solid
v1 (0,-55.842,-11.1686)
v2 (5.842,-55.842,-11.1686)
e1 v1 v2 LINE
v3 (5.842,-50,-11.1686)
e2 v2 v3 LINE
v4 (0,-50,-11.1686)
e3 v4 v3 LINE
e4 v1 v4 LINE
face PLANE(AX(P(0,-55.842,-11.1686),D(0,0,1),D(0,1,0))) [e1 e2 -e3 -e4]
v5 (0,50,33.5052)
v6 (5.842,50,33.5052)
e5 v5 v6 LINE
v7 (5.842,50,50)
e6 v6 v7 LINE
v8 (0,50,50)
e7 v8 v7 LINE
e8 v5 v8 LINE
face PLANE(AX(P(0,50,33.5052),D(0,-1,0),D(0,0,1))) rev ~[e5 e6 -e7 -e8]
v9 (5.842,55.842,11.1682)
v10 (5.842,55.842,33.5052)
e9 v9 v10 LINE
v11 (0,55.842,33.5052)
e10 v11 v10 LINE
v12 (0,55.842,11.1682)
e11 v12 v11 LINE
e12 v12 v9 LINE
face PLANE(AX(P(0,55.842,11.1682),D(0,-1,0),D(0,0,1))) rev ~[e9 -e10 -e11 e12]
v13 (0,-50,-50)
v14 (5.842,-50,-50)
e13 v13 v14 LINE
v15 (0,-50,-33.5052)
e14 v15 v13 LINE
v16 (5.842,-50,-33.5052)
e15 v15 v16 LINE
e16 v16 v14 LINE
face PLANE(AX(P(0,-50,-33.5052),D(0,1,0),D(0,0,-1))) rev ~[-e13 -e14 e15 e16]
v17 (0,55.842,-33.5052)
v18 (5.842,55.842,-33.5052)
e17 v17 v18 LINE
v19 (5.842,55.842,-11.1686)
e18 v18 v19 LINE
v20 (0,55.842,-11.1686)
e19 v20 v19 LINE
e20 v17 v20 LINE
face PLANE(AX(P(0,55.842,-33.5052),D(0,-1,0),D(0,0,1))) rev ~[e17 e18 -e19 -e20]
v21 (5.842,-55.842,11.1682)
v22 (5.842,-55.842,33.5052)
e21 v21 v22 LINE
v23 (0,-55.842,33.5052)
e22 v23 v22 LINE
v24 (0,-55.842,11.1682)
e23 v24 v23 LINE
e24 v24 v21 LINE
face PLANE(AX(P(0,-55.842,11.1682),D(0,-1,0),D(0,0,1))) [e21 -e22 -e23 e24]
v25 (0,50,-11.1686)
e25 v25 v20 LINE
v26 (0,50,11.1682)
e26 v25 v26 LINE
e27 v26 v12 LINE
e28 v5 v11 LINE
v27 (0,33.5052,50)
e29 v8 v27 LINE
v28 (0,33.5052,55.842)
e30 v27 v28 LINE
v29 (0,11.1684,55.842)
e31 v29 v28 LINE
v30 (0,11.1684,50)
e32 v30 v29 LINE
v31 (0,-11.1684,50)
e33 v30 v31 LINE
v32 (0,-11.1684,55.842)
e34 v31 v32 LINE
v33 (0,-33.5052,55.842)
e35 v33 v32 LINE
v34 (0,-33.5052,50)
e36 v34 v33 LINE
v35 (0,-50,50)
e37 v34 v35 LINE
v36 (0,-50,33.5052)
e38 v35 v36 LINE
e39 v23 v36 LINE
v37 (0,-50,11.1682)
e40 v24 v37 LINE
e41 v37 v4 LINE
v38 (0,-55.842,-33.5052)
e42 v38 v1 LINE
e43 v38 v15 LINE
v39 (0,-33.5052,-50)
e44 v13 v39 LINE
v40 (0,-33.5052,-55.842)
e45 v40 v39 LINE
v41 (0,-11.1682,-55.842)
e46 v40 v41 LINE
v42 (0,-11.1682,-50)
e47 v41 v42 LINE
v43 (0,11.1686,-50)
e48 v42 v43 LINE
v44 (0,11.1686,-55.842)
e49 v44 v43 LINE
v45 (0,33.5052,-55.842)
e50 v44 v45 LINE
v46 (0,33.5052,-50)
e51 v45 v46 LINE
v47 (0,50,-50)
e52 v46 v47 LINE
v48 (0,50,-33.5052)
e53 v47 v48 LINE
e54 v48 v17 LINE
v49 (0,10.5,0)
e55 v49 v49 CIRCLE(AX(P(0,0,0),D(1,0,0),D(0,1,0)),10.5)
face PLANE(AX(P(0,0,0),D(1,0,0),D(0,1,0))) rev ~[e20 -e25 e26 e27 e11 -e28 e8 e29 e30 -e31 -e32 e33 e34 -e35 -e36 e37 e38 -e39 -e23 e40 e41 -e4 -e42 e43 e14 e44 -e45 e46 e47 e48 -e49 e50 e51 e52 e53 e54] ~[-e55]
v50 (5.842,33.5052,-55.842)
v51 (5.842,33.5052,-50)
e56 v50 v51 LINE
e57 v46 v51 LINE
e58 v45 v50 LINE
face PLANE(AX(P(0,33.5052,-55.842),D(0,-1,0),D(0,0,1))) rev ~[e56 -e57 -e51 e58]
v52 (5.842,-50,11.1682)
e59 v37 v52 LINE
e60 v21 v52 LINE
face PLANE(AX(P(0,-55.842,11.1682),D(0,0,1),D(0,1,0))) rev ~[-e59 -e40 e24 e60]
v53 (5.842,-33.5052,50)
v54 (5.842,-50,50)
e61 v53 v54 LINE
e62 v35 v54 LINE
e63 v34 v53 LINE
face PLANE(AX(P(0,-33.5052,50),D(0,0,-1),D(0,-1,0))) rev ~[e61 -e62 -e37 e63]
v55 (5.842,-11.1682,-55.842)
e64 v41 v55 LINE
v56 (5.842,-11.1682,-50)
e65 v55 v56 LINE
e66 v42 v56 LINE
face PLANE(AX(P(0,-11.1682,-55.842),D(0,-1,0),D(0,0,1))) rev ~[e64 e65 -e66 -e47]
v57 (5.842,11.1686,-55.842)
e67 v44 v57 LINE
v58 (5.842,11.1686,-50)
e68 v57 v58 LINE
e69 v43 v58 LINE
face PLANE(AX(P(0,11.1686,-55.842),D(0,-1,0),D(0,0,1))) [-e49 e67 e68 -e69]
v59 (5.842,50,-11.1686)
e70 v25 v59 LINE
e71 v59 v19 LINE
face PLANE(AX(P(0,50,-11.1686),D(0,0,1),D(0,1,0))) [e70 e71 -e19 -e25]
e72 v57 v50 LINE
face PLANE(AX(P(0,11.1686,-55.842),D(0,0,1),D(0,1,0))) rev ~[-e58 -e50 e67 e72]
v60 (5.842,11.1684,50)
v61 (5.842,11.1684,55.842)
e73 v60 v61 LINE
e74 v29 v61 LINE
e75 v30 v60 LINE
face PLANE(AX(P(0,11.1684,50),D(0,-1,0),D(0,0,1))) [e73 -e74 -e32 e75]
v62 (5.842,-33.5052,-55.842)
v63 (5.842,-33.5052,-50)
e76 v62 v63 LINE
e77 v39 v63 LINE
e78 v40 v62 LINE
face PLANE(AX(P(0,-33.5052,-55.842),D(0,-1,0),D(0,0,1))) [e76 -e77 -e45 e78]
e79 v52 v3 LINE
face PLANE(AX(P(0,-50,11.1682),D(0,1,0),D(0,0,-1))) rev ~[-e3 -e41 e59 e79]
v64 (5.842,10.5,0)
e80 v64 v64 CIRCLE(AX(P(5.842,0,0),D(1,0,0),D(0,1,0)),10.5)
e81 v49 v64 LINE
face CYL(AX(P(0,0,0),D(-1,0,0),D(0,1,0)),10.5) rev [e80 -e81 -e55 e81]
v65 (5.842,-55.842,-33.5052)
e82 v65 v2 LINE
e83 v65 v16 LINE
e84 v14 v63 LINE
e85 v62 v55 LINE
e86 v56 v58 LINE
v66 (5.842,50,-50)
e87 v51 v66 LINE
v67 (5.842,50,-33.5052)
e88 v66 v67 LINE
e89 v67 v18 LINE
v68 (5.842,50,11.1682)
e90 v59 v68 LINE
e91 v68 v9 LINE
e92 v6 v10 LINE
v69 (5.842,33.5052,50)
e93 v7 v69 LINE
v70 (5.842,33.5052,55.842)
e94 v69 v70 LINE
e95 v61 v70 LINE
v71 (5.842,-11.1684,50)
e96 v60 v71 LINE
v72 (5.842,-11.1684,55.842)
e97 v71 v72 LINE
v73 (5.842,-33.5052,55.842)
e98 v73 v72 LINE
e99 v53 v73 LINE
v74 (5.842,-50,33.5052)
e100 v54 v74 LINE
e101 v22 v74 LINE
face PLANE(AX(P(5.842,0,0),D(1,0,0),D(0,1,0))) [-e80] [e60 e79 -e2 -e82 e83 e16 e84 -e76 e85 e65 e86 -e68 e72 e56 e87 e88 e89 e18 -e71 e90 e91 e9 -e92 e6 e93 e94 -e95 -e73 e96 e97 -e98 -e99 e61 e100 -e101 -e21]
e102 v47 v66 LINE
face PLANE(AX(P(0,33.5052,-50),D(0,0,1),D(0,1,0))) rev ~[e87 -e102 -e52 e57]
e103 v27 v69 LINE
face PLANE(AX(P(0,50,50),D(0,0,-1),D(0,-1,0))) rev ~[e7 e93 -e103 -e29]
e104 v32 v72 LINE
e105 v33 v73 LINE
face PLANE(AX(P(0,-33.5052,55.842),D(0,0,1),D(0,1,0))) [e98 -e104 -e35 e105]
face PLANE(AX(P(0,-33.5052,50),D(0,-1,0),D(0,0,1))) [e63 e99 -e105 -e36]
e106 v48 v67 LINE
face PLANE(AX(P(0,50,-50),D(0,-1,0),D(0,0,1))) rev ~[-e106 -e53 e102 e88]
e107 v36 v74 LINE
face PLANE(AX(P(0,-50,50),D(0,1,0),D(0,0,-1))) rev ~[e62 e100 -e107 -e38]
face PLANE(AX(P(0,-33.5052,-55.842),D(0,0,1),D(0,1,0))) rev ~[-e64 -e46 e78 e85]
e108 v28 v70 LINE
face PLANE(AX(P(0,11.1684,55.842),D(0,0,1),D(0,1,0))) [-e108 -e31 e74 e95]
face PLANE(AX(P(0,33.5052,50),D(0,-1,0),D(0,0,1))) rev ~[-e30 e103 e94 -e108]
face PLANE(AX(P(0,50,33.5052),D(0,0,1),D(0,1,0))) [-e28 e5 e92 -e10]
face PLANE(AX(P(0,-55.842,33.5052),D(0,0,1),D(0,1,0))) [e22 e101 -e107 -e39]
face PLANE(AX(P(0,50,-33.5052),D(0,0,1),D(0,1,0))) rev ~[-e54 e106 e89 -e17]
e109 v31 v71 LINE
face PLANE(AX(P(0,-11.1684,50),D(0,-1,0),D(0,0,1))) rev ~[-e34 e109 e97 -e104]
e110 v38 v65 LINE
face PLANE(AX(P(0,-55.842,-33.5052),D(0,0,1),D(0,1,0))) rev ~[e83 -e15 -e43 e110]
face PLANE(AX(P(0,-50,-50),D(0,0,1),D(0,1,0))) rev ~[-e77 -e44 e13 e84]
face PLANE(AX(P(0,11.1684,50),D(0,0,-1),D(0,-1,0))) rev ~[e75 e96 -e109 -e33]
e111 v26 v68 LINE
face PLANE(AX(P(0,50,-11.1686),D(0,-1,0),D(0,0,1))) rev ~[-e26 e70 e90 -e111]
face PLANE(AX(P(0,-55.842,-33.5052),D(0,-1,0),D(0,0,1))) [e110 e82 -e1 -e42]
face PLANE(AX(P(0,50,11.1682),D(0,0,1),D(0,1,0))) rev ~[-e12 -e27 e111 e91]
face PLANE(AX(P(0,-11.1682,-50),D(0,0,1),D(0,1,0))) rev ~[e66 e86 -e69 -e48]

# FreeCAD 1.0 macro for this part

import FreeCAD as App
import Part
import Sketcher
from FreeCAD import Vector
Q = App.Units.Quantity

doc = App.newDocument("Part")
params = doc.addObject("Spreadsheet::Sheet", "Params")
for row, (alias, value) in enumerate([
    ("sketch1_diameter", "21 mm"),
    ("pad1_length", "5.842 mm"),
], start=1):
    params.set(f"A{row}", alias)
    params.set(f"B{row}", "=" + value)
    params.setAlias(f"B{row}", alias)

body = doc.addObject("PartDesign::Body", "Body")

# Sketch on YZ plane
sketch1 = doc.addObject("Sketcher::SketchObject", "Sketch")
body.addObject(sketch1)
sketch1.AttachmentSupport = (doc.YZ_Plane, [""])
sketch1.MapMode = "FlatFace"
sketch1.addGeometry(Part.LineSegment(Vector(-50, 50, 0), Vector(-50, 34, 0)), False)
sketch1.addGeometry(Part.LineSegment(Vector(-50, 34, 0), Vector(-56, 34, 0)), False)
sketch1.addGeometry(Part.LineSegment(Vector(-56, 34, 0), Vector(-56, 11, 0)), False)
sketch1.addGeometry(Part.LineSegment(Vector(-56, 11, 0), Vector(-50, 11, 0)), False)
sketch1.addGeometry(Part.LineSegment(Vector(-50, 11, 0), Vector(-50, -11, 0)), False)
sketch1.addGeometry(Part.LineSegment(Vector(-50, -11, 0), Vector(-56, -11, 0)), False)
sketch1.addGeometry(Part.LineSegment(Vector(-56, -11, 0), Vector(-56, -34, 0)), False)
sketch1.addGeometry(Part.LineSegment(Vector(-56, -34, 0), Vector(-50, -34, 0)), False)
sketch1.addGeometry(Part.LineSegment(Vector(-50, -34, 0), Vector(-50, -50, 0)), False)
sketch1.addGeometry(Part.LineSegment(Vector(-50, -50, 0), Vector(-34, -50, 0)), False)
sketch1.addGeometry(Part.LineSegment(Vector(-34, -50, 0), Vector(-34, -56, 0)), False)
sketch1.addGeometry(Part.LineSegment(Vector(-34, -56, 0), Vector(-11, -56, 0)), False)
sketch1.addGeometry(Part.LineSegment(Vector(-11, -56, 0), Vector(-11, -50, 0)), False)
sketch1.addGeometry(Part.LineSegment(Vector(-11, -50, 0), Vector(11, -50, 0)), False)
sketch1.addGeometry(Part.LineSegment(Vector(11, -50, 0), Vector(11, -56, 0)), False)
sketch1.addGeometry(Part.LineSegment(Vector(11, -56, 0), Vector(34, -56, 0)), False)
sketch1.addGeometry(Part.LineSegment(Vector(34, -56, 0), Vector(34, -50, 0)), False)
sketch1.addGeometry(Part.LineSegment(Vector(34, -50, 0), Vector(50, -50, 0)), False)
sketch1.addGeometry(Part.LineSegment(Vector(50, -50, 0), Vector(50, -34, 0)), False)
sketch1.addGeometry(Part.LineSegment(Vector(50, -34, 0), Vector(56, -34, 0)), False)
sketch1.addGeometry(Part.LineSegment(Vector(56, -34, 0), Vector(56, -11, 0)), False)
sketch1.addGeometry(Part.LineSegment(Vector(56, -11, 0), Vector(50, -11, 0)), False)
sketch1.addGeometry(Part.LineSegment(Vector(50, -11, 0), Vector(50, 11, 0)), False)
sketch1.addGeometry(Part.LineSegment(Vector(50, 11, 0), Vector(56, 11, 0)), False)
sketch1.addGeometry(Part.LineSegment(Vector(56, 11, 0), Vector(56, 34, 0)), False)
sketch1.addGeometry(Part.LineSegment(Vector(56, 34, 0), Vector(50, 34, 0)), False)
sketch1.addGeometry(Part.LineSegment(Vector(50, 34, 0), Vector(50, 50, 0)), False)
sketch1.addGeometry(Part.LineSegment(Vector(50, 50, 0), Vector(34, 50, 0)), False)
sketch1.addGeometry(Part.LineSegment(Vector(34, 50, 0), Vector(34, 56, 0)), False)
sketch1.addGeometry(Part.LineSegment(Vector(34, 56, 0), Vector(11, 56, 0)), False)
sketch1.addGeometry(Part.LineSegment(Vector(11, 56, 0), Vector(11, 50, 0)), False)
sketch1.addGeometry(Part.LineSegment(Vector(11, 50, 0), Vector(-11, 50, 0)), False)
sketch1.addGeometry(Part.LineSegment(Vector(-11, 50, 0), Vector(-11, 56, 0)), False)
sketch1.addGeometry(Part.LineSegment(Vector(-11, 56, 0), Vector(-34, 56, 0)), False)
sketch1.addGeometry(Part.LineSegment(Vector(-34, 56, 0), Vector(-34, 50, 0)), False)
sketch1.addGeometry(Part.LineSegment(Vector(-34, 50, 0), Vector(-50, 50, 0)), False)
sketch1.addGeometry(Part.Circle(Vector(0, 0, 0), Vector(0, 0, 1), 10), False)
sketch1.addConstraint(Sketcher.Constraint("Coincident", 0, 2, 1, 1))
sketch1.addConstraint(Sketcher.Constraint("Coincident", 1, 2, 2, 1))
sketch1.addConstraint(Sketcher.Constraint("Coincident", 2, 2, 3, 1))
sketch1.addConstraint(Sketcher.Constraint("Coincident", 3, 2, 4, 1))
sketch1.addConstraint(Sketcher.Constraint("Coincident", 4, 2, 5, 1))
sketch1.addConstraint(Sketcher.Constraint("Coincident", 5, 2, 6, 1))
sketch1.addConstraint(Sketcher.Constraint("Coincident", 6, 2, 7, 1))
sketch1.addConstraint(Sketcher.Constraint("Coincident", 7, 2, 8, 1))
sketch1.addConstraint(Sketcher.Constraint("Coincident", 8, 2, 9, 1))
sketch1.addConstraint(Sketcher.Constraint("Coincident", 9, 2, 10, 1))
sketch1.addConstraint(Sketcher.Constraint("Coincident", 10, 2, 11, 1))
sketch1.addConstraint(Sketcher.Constraint("Coincident", 11, 2, 12, 1))
sketch1.addConstraint(Sketcher.Constraint("Coincident", 12, 2, 13, 1))
sketch1.addConstraint(Sketcher.Constraint("Coincident", 13, 2, 14, 1))
sketch1.addConstraint(Sketcher.Constraint("Coincident", 14, 2, 15, 1))
sketch1.addConstraint(Sketcher.Constraint("Coincident", 15, 2, 16, 1))
sketch1.addConstraint(Sketcher.Constraint("Coincident", 16, 2, 17, 1))
sketch1.addConstraint(Sketcher.Constraint("Coincident", 17, 2, 18, 1))
sketch1.addConstraint(Sketcher.Constraint("Coincident", 18, 2, 19, 1))
sketch1.addConstraint(Sketcher.Constraint("Coincident", 19, 2, 20, 1))
sketch1.addConstraint(Sketcher.Constraint("Coincident", 20, 2, 21, 1))
sketch1.addConstraint(Sketcher.Constraint("Coincident", 21, 2, 22, 1))
sketch1.addConstraint(Sketcher.Constraint("Coincident", 22, 2, 23, 1))
sketch1.addConstraint(Sketcher.Constraint("Coincident", 23, 2, 24, 1))
sketch1.addConstraint(Sketcher.Constraint("Coincident", 24, 2, 25, 1))
sketch1.addConstraint(Sketcher.Constraint("Coincident", 25, 2, 26, 1))
sketch1.addConstraint(Sketcher.Constraint("Coincident", 26, 2, 27, 1))
sketch1.addConstraint(Sketcher.Constraint("Coincident", 27, 2, 28, 1))
sketch1.addConstraint(Sketcher.Constraint("Coincident", 28, 2, 29, 1))
sketch1.addConstraint(Sketcher.Constraint("Coincident", 29, 2, 30, 1))
sketch1.addConstraint(Sketcher.Constraint("Coincident", 30, 2, 31, 1))
sketch1.addConstraint(Sketcher.Constraint("Coincident", 31, 2, 32, 1))
sketch1.addConstraint(Sketcher.Constraint("Coincident", 32, 2, 33, 1))
sketch1.addConstraint(Sketcher.Constraint("Coincident", 33, 2, 34, 1))
sketch1.addConstraint(Sketcher.Constraint("Coincident", 34, 2, 35, 1))
sketch1.addConstraint(Sketcher.Constraint("Coincident", 35, 2, 0, 1))
sketch1.addConstraint(Sketcher.Constraint("Vertical", 0))
sketch1.addConstraint(Sketcher.Constraint("Horizontal", 1))
sketch1.addConstraint(Sketcher.Constraint("Vertical", 2))
sketch1.addConstraint(Sketcher.Constraint("Horizontal", 3))
sketch1.addConstraint(Sketcher.Constraint("Vertical", 4))
sketch1.addConstraint(Sketcher.Constraint("Horizontal", 5))
sketch1.addConstraint(Sketcher.Constraint("Vertical", 6))
sketch1.addConstraint(Sketcher.Constraint("Horizontal", 7))
sketch1.addConstraint(Sketcher.Constraint("Vertical", 8))
sketch1.addConstraint(Sketcher.Constraint("Horizontal", 9))
sketch1.addConstraint(Sketcher.Constraint("Vertical", 10))
sketch1.addConstraint(Sketcher.Constraint("Horizontal", 11))
sketch1.addConstraint(Sketcher.Constraint("Vertical", 12))
sketch1.addConstraint(Sketcher.Constraint("Horizontal", 13))
sketch1.addConstraint(Sketcher.Constraint("Vertical", 14))
sketch1.addConstraint(Sketcher.Constraint("Horizontal", 15))
sketch1.addConstraint(Sketcher.Constraint("Vertical", 16))
sketch1.addConstraint(Sketcher.Constraint("Horizontal", 17))
sketch1.addConstraint(Sketcher.Constraint("Vertical", 18))
sketch1.addConstraint(Sketcher.Constraint("Horizontal", 19))
sketch1.addConstraint(Sketcher.Constraint("Vertical", 20))
sketch1.addConstraint(Sketcher.Constraint("Horizontal", 21))
sketch1.addConstraint(Sketcher.Constraint("Vertical", 22))
sketch1.addConstraint(Sketcher.Constraint("Horizontal", 23))
sketch1.addConstraint(Sketcher.Constraint("Vertical", 24))
sketch1.addConstraint(Sketcher.Constraint("Horizontal", 25))
sketch1.addConstraint(Sketcher.Constraint("Vertical", 26))
sketch1.addConstraint(Sketcher.Constraint("Horizontal", 27))
sketch1.addConstraint(Sketcher.Constraint("Vertical", 28))
sketch1.addConstraint(Sketcher.Constraint("Horizontal", 29))
sketch1.addConstraint(Sketcher.Constraint("Vertical", 30))
sketch1.addConstraint(Sketcher.Constraint("Horizontal", 31))
sketch1.addConstraint(Sketcher.Constraint("Vertical", 32))
sketch1.addConstraint(Sketcher.Constraint("Horizontal", 33))
sketch1.addConstraint(Sketcher.Constraint("Vertical", 34))
sketch1.addConstraint(Sketcher.Constraint("Horizontal", 35))
sketch1.addConstraint(Sketcher.Constraint("Coincident", 36, 3, -1, 1))
sketch1.addConstraint(Sketcher.Constraint("Symmetric", 0, 2, 18, 2, -1, 1))
sketch1.addConstraint(Sketcher.Constraint("Symmetric", 6, 2, 24, 2, -1, 1))
sketch1.addConstraint(Sketcher.Constraint("Symmetric", 8, 2, 26, 2, -1, 1))
sketch1.addConstraint(Sketcher.Constraint("Symmetric", 10, 2, 28, 2, -1, 1))
sketch1.addConstraint(Sketcher.Constraint("Symmetric", 15, 2, 33, 2, -1, 1))
sketch1.addConstraint(Sketcher.Constraint("Symmetric", 10, 2, 15, 2, -2))
sketch1.addConstraint(Sketcher.Constraint("Symmetric", 8, 2, 17, 2, -2))
sketch1.addConstraint(Sketcher.Constraint("Symmetric", 6, 2, 19, 2, -2))
sketch1.addConstraint(Sketcher.Constraint("Symmetric", 4, 2, 21, 2, -2))
sketch1.addConstraint(Sketcher.Constraint("Symmetric", 2, 2, 23, 2, -2))
sketch1.addConstraint(Sketcher.Constraint("Horizontal", 9, 2, 12, 2))
sketch1.addConstraint(Sketcher.Constraint("Horizontal", 27, 2, 30, 2))
sketch1.addConstraint(Sketcher.Constraint("Horizontal", 31, 2, 34, 2))
sketch1.addConstraint(Sketcher.Constraint("Vertical", 0, 2, 3, 2))
sketch1.addConstraint(Sketcher.Constraint("Equal", 13, 29))
sketch1.addConstraint(Sketcher.Constraint("Equal", 29, 31))
sketch1.addConstraint(Sketcher.Constraint("Equal", 31, 33))
sketch1.addConstraint(Sketcher.Constraint("Equal", 35, 0))
sketch1.addConstraint(Sketcher.Constraint("Equal", 11, 2))
sketch1.addConstraint(Sketcher.Constraint("Equal", 33, 4))
sketch1.addConstraint(Sketcher.Constraint("Equal", 15, 6))
sketch1.addConstraint(Sketcher.Constraint("Equal", 25, 10))
sketch1.addConstraint(Sketcher.Constraint("Diameter", 36, Q("21 mm")))
sketch1.addConstraint(Sketcher.Constraint("DistanceX", 0, 2, -1, 1, Q("50 mm")))
sketch1.addConstraint(Sketcher.Constraint("DistanceX", 1, 2, 1, 1, Q("5.842 mm")))
sketch1.addConstraint(Sketcher.Constraint("DistanceX", 11, 1, 11, 2, Q("22.337 mm")))
sketch1.addConstraint(Sketcher.Constraint("DistanceX", 9, 1, 9, 2, Q("16.4948 mm")))
sketch1.setExpression("Constraints[95]", "Params.sketch1_diameter")
pad1 = doc.addObject("PartDesign::Pad", "Pad")
body.addObject(pad1)
pad1.Profile = sketch1
pad1.setExpression("Length", "Params.pad1_length")

doc.recompute()
